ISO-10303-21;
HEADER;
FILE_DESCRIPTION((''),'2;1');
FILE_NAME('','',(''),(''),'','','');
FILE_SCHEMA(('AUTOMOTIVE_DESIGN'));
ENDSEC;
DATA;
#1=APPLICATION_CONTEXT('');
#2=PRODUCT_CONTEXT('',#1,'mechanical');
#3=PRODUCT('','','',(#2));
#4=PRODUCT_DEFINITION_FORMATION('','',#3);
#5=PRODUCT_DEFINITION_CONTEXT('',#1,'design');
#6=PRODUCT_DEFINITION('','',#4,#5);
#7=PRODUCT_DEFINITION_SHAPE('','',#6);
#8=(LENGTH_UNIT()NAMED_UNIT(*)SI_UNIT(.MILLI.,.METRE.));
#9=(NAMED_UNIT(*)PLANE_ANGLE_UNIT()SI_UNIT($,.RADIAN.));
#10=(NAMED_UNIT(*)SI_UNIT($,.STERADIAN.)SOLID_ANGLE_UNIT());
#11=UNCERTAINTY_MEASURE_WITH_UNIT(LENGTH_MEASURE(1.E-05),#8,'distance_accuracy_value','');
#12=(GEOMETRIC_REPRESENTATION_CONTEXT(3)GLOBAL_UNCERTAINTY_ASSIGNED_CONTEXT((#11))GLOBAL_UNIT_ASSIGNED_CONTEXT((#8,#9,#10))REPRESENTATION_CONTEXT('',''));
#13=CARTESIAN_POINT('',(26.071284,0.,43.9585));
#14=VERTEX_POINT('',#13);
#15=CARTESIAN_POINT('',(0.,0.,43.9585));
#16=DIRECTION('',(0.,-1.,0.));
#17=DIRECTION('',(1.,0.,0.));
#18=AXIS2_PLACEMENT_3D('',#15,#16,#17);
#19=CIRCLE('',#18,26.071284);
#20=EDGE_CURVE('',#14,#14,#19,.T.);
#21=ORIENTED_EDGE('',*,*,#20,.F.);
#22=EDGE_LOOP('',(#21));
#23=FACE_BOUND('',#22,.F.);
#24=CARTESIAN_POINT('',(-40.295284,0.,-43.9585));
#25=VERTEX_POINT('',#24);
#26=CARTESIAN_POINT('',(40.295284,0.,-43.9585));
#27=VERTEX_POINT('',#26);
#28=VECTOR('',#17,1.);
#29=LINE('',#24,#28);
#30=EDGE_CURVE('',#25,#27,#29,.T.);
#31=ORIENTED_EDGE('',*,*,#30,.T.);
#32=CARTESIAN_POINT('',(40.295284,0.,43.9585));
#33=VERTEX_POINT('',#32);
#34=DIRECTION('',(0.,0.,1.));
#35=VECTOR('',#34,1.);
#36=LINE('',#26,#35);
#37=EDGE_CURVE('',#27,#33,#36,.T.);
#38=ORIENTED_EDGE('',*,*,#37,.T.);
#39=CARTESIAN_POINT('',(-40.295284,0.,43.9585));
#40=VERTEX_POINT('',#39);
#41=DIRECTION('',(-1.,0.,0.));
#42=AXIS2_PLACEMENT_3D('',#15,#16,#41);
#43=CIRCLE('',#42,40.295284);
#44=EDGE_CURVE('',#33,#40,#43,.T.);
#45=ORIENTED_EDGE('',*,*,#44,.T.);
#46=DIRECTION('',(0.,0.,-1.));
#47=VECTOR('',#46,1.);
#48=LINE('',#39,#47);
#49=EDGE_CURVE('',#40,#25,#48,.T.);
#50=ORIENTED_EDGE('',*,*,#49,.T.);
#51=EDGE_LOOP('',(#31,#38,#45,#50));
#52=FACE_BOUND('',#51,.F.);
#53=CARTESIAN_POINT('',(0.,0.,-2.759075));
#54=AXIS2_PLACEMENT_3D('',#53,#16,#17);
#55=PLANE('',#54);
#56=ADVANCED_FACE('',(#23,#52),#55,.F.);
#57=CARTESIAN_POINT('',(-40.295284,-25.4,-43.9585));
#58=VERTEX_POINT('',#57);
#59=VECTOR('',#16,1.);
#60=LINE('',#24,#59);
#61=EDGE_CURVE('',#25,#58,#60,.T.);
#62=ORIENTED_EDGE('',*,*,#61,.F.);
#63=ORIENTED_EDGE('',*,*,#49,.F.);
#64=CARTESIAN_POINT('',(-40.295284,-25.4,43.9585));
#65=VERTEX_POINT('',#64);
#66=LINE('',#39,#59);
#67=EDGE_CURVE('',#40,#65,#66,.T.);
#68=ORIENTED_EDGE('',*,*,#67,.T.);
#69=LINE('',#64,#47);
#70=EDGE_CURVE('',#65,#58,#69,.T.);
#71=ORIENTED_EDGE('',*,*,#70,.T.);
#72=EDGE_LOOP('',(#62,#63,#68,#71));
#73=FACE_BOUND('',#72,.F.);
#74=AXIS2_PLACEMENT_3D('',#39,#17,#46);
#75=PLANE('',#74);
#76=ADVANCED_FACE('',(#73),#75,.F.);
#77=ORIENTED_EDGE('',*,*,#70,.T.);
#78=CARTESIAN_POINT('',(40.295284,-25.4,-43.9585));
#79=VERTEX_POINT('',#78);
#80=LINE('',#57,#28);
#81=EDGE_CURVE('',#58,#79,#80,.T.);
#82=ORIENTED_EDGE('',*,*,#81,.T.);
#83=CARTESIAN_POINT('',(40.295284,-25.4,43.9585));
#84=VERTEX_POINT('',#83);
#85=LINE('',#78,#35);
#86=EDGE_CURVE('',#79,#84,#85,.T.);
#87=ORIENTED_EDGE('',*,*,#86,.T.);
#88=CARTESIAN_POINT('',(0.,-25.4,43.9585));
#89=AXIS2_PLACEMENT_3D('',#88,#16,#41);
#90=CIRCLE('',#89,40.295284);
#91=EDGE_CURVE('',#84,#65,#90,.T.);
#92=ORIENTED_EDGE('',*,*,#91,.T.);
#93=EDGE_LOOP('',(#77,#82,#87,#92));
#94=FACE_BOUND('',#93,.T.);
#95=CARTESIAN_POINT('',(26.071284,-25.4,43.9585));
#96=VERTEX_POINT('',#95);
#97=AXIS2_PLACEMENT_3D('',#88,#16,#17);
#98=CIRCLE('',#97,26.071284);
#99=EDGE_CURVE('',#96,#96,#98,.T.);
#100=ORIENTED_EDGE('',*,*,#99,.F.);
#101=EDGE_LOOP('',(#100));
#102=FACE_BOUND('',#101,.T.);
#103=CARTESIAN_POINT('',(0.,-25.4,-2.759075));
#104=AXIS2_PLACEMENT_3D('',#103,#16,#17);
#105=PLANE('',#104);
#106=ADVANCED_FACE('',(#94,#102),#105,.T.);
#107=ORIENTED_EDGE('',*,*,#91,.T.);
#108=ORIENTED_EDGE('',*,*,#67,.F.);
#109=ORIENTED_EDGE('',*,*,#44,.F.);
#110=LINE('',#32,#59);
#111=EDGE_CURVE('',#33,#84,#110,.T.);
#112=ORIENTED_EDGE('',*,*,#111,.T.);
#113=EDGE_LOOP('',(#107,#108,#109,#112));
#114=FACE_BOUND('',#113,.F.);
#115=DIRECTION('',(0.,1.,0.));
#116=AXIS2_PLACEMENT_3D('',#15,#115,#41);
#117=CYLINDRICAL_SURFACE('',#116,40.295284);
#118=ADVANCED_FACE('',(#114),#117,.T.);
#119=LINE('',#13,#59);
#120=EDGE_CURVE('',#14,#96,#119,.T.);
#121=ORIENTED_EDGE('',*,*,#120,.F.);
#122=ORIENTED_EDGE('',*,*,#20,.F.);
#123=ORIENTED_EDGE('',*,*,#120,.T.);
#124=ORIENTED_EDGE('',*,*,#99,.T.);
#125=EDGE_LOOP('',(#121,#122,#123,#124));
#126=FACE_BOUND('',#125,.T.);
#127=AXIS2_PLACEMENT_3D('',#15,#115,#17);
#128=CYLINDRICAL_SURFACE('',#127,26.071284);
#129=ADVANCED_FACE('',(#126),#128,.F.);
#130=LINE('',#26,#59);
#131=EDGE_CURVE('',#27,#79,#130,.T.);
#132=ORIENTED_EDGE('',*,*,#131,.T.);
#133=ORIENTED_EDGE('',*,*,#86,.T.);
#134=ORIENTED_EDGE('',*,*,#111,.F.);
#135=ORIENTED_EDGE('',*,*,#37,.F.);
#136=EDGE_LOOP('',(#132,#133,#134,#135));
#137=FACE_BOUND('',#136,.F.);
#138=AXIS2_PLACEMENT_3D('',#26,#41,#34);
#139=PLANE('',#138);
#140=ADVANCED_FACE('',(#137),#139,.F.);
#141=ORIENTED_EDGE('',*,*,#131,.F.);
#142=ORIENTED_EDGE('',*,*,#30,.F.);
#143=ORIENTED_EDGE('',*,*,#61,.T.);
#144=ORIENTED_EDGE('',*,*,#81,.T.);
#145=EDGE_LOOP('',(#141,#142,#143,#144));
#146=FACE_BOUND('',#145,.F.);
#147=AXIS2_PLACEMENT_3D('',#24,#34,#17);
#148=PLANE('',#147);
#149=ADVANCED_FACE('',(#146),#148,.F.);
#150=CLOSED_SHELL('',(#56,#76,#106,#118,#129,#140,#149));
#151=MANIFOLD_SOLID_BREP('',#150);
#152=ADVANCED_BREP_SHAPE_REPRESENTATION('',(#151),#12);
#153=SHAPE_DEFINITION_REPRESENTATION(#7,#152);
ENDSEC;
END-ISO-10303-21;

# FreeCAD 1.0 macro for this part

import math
import FreeCAD as App
import Part
import Sketcher
Q = App.Units.Quantity

doc = App.newDocument("Part")
body = doc.addObject("PartDesign::Body", "Body")

# Sketch on XZ plane
sketch1 = body.newObject("Sketcher::SketchObject", "Sketch")
sketch1.AttachmentSupport = (doc.getObject("XZ_Plane"), [""])
sketch1.MapMode = "FlatFace"
sketch1.addGeometry(Part.LineSegment(App.Vector(-40, 44, 0), App.Vector(-40, -44, 0)), False)
sketch1.addGeometry(Part.LineSegment(App.Vector(-40, -44, 0), App.Vector(40, -44, 0)), False)
sketch1.addGeometry(Part.LineSegment(App.Vector(40, -44, 0), App.Vector(40, 44, 0)), False)
sketch1.addGeometry(Part.ArcOfCircle(Part.Circle(App.Vector(0, 44, 0), App.Vector(0, 0, 1), 40), math.radians(0), math.radians(180)), False)
sketch1.addGeometry(Part.Circle(App.Vector(0, 44, 0), App.Vector(0, 0, 1), 26), False)
sketch1.addConstraint(Sketcher.Constraint("Coincident", 0, 2, 1, 1))
sketch1.addConstraint(Sketcher.Constraint("Coincident", 1, 2, 2, 1))
sketch1.addConstraint(Sketcher.Constraint("Tangent", 2, 2, 3, 1))
sketch1.addConstraint(Sketcher.Constraint("Tangent", 3, 2, 0, 1))
sketch1.addConstraint(Sketcher.Constraint("Vertical", 0))
sketch1.addConstraint(Sketcher.Constraint("Horizontal", 1))
sketch1.addConstraint(Sketcher.Constraint("Vertical", 2))
sketch1.addConstraint(Sketcher.Constraint("Coincident", 4, 3, 3, 3))
sketch1.addConstraint(Sketcher.Constraint("Symmetric", 0, 2, 2, 2, -1, 1))
sketch1.addConstraint(Sketcher.Constraint("Diameter", 4, 52.142568))
sketch1.addConstraint(Sketcher.Constraint("DistanceY", 0, 2, 0, 1, 87.917))
sketch1.addConstraint(Sketcher.Constraint("Radius", 3, 40.295284))
pad1 = body.newObject("PartDesign::Pad", "Pad")
pad1.Profile = sketch1
pad1.Length = Q("1 in")

doc.recompute()
